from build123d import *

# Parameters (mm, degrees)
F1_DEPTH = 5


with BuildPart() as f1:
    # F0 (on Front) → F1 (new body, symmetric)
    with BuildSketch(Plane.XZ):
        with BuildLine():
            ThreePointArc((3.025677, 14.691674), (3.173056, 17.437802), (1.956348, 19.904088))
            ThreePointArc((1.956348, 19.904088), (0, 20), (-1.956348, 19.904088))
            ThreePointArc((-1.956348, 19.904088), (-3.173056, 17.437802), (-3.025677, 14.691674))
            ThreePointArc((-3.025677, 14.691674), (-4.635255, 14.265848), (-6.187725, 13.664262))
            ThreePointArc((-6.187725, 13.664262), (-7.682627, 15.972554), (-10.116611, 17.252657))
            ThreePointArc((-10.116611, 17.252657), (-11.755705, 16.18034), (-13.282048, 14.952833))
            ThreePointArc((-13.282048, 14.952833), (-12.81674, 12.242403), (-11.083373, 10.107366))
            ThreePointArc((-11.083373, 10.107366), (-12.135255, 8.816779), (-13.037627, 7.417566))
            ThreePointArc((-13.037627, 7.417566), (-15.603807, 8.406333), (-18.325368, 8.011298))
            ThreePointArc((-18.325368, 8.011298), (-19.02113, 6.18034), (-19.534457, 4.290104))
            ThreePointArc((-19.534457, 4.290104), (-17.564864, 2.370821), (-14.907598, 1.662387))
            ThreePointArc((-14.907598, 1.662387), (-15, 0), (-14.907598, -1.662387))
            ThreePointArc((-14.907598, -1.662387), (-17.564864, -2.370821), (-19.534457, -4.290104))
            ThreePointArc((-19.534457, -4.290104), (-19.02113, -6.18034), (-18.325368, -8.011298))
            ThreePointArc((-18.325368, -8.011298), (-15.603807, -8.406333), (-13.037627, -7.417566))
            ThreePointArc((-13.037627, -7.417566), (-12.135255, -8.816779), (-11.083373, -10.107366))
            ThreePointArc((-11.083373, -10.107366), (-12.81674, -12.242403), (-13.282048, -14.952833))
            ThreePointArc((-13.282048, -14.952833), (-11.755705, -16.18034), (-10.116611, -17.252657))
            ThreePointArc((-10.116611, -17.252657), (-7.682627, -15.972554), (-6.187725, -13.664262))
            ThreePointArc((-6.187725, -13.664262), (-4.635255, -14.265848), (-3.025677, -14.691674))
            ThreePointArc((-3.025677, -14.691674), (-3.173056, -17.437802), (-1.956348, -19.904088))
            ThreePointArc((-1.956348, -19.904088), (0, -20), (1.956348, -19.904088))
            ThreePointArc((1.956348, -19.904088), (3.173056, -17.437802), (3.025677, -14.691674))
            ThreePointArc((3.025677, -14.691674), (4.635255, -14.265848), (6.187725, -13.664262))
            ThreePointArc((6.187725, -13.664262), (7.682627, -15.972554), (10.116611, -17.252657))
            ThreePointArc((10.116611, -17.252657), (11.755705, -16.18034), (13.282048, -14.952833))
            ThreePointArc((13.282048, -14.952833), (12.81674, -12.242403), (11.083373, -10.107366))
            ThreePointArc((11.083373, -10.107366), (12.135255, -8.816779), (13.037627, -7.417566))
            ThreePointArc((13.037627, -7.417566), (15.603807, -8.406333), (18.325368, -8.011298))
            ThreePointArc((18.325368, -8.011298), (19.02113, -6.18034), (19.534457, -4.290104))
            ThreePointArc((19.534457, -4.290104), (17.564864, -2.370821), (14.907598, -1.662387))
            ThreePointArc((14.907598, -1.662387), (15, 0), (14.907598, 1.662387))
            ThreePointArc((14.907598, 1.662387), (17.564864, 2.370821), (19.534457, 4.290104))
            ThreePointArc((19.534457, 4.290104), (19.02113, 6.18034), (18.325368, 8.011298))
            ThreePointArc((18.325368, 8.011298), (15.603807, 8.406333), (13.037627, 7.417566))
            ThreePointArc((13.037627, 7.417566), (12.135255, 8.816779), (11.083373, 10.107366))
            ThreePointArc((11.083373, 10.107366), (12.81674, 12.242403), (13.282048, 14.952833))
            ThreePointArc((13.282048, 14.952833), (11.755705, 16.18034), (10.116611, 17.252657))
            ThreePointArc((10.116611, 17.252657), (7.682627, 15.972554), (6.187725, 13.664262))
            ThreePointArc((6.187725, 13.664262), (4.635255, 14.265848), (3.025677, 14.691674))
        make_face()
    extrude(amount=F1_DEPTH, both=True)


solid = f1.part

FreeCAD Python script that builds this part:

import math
import FreeCAD as App
import Part
import Sketcher

V = App.Vector

doc = App.newDocument("Part")
body = doc.addObject("PartDesign::Body", "Body")

# Sketch on XZ plane
sketch1 = doc.addObject("Sketcher::SketchObject", "Sketch")
body.addObject(sketch1)
sketch1.AttachmentSupport = (doc.XZ_Plane, [""])
sketch1.MapMode = "FlatFace"
sketch1.addGeometry(Part.ArcOfCircle(Part.Circle(V(-2.147352, 16.346319, 0), V(0, 0, 1), 5.431213), math.radians(-17.73739), math.radians(40.924185)), False)
sketch1.addGeometry(Part.ArcOfCircle(Part.Circle(V(0, -0.000087, 0), V(0, 0, 1), 20.000087), math.radians(84.386524), math.radians(95.613476)), False)
sketch1.addGeometry(Part.ArcOfCircle(Part.Circle(V(2.147352, 16.346319, 0), V(0, 0, 1), 5.431213), math.radians(139.075815), math.radians(197.73739)), False)
sketch1.addGeometry(Part.ArcOfCircle(Part.Circle(V(-0.00001, 0.000035, 0), V(0, 0, 1), 14.999964), math.radians(101.637068), math.radians(114.362942)), False)
sketch1.addGeometry(Part.ArcOfCircle(Part.Circle(V(-11.345366, 11.962269, 0), V(0, 0, 1), 5.43121), math.radians(18.2626), math.radians(76.924215)), False)
sketch1.addGeometry(Part.ArcOfCircle(Part.Circle(V(-0.000002, -0.000002, 0), V(0, 0, 1), 20.000001), math.radians(120.386494), math.radians(131.613492)), False)
sketch1.addGeometry(Part.ArcOfCircle(Part.Circle(V(-7.870888, 14.486628, 0), V(0, 0, 1), 5.431206), math.radians(175.075776), math.radians(233.737437)), False)
sketch1.addGeometry(Part.ArcOfCircle(Part.Circle(V(-0.000009, 0.000007, 0), V(0, 0, 1), 14.999989), math.radians(137.637072), math.radians(150.36293)), False)
sketch1.addGeometry(Part.ArcOfCircle(Part.Circle(V(-16.20984, 3.009045, 0), V(0, 0, 1), 5.431205), math.radians(54.262566), math.radians(112.924234)), False)
sketch1.addGeometry(Part.ArcOfCircle(Part.Circle(V(0.000081, -0.000026, 0), V(0, 0, 1), 20.000085), math.radians(156.386528), math.radians(167.613478)), False)
sketch1.addGeometry(Part.ArcOfCircle(Part.Circle(V(-14.882708, 7.093537, 0), V(0, 0, 1), 5.431207), math.radians(-148.924224), math.radians(-90.26258)), False)
sketch1.addGeometry(Part.ArcOfCircle(Part.Circle(V(0.000047, 0, 0), V(0, 0, 1), 15.000047), math.radians(173.637098), math.radians(186.362902)), False)
sketch1.addGeometry(Part.ArcOfCircle(Part.Circle(V(-14.882708, -7.093537, 0), V(0, 0, 1), 5.431207), math.radians(90.26258), math.radians(148.924224)), False)
sketch1.addGeometry(Part.ArcOfCircle(Part.Circle(V(0.000081, 0.000026, 0), V(0, 0, 1), 20.000085), math.radians(-167.613478), math.radians(-156.386528)), False)
sketch1.addGeometry(Part.ArcOfCircle(Part.Circle(V(-16.20984, -3.009045, 0), V(0, 0, 1), 5.431205), math.radians(-112.924234), math.radians(-54.262566)), False)
sketch1.addGeometry(Part.ArcOfCircle(Part.Circle(V(-0.000009, -0.000007, 0), V(0, 0, 1), 14.999989), math.radians(-150.36293), math.radians(-137.637072)), False)
sketch1.addGeometry(Part.ArcOfCircle(Part.Circle(V(-7.870888, -14.486628, 0), V(0, 0, 1), 5.431206), math.radians(126.262563), math.radians(184.924224)), False)
sketch1.addGeometry(Part.ArcOfCircle(Part.Circle(V(-0.000002, 0.000002, 0), V(0, 0, 1), 20.000001), math.radians(-131.613492), math.radians(-120.386494)), False)
sketch1.addGeometry(Part.ArcOfCircle(Part.Circle(V(-11.345366, -11.962269, 0), V(0, 0, 1), 5.43121), math.radians(-76.924215), math.radians(-18.2626)), False)
sketch1.addGeometry(Part.ArcOfCircle(Part.Circle(V(-0.00001, -0.000035, 0), V(0, 0, 1), 14.999964), math.radians(-114.362942), math.radians(-101.637068)), False)
sketch1.addGeometry(Part.ArcOfCircle(Part.Circle(V(2.147352, -16.346319, 0), V(0, 0, 1), 5.431213), math.radians(162.26261), math.radians(220.924185)), False)
sketch1.addGeometry(Part.ArcOfCircle(Part.Circle(V(0, 0.000087, 0), V(0, 0, 1), 20.000087), math.radians(-95.613476), math.radians(-84.386524)), False)
sketch1.addGeometry(Part.ArcOfCircle(Part.Circle(V(-2.147352, -16.346319, 0), V(0, 0, 1), 5.431213), math.radians(-40.924185), math.radians(17.73739)), False)
sketch1.addGeometry(Part.ArcOfCircle(Part.Circle(V(0.00001, -0.000035, 0), V(0, 0, 1), 14.999964), math.radians(-78.362932), math.radians(-65.637058)), False)
sketch1.addGeometry(Part.ArcOfCircle(Part.Circle(V(11.345366, -11.962269, 0), V(0, 0, 1), 5.43121), math.radians(-161.7374), math.radians(-103.075785)), False)
sketch1.addGeometry(Part.ArcOfCircle(Part.Circle(V(0.000002, 0.000002, 0), V(0, 0, 1), 20.000001), math.radians(-59.613506), math.radians(-48.386508)), False)
sketch1.addGeometry(Part.ArcOfCircle(Part.Circle(V(7.870888, -14.486628, 0), V(0, 0, 1), 5.431206), math.radians(-4.924224), math.radians(53.737437)), False)
sketch1.addGeometry(Part.ArcOfCircle(Part.Circle(V(0.000009, -0.000007, 0), V(0, 0, 1), 14.999989), math.radians(-42.362928), math.radians(-29.63707)), False)
sketch1.addGeometry(Part.ArcOfCircle(Part.Circle(V(16.20984, -3.009045, 0), V(0, 0, 1), 5.431205), math.radians(-125.737434), math.radians(-67.075766)), False)
sketch1.addGeometry(Part.ArcOfCircle(Part.Circle(V(-0.000081, 0.000026, 0), V(0, 0, 1), 20.000085), math.radians(-23.613472), math.radians(-12.386522)), False)
sketch1.addGeometry(Part.ArcOfCircle(Part.Circle(V(14.882708, -7.093537, 0), V(0, 0, 1), 5.431207), math.radians(31.075776), math.radians(89.73742)), False)
sketch1.addGeometry(Part.ArcOfCircle(Part.Circle(V(-0.000047, 0, 0), V(0, 0, 1), 15.000047), math.radians(-6.362902), math.radians(6.362902)), False)
sketch1.addGeometry(Part.ArcOfCircle(Part.Circle(V(14.882708, 7.093537, 0), V(0, 0, 1), 5.431207), math.radians(-89.73742), math.radians(-31.075776)), False)
sketch1.addGeometry(Part.ArcOfCircle(Part.Circle(V(-0.000081, -0.000026, 0), V(0, 0, 1), 20.000085), math.radians(12.386522), math.radians(23.613472)), False)
sketch1.addGeometry(Part.ArcOfCircle(Part.Circle(V(16.20984, 3.009045, 0), V(0, 0, 1), 5.431205), math.radians(67.075766), math.radians(125.737434)), False)
sketch1.addGeometry(Part.ArcOfCircle(Part.Circle(V(0.000009, 0.000007, 0), V(0, 0, 1), 14.999989), math.radians(29.63707), math.radians(42.362928)), False)
sketch1.addGeometry(Part.ArcOfCircle(Part.Circle(V(7.870888, 14.486628, 0), V(0, 0, 1), 5.431206), math.radians(-53.737437), math.radians(4.924224)), False)
sketch1.addGeometry(Part.ArcOfCircle(Part.Circle(V(0.000002, -0.000002, 0), V(0, 0, 1), 20.000001), math.radians(48.386508), math.radians(59.613506)), False)
sketch1.addGeometry(Part.ArcOfCircle(Part.Circle(V(11.345366, 11.962269, 0), V(0, 0, 1), 5.43121), math.radians(103.075785), math.radians(161.7374)), False)
sketch1.addGeometry(Part.ArcOfCircle(Part.Circle(V(0.00001, 0.000035, 0), V(0, 0, 1), 14.999964), math.radians(65.637058), math.radians(78.362932)), False)
sketch1.addConstraint(Sketcher.Constraint("Coincident", 0, 2, 1, 1))
sketch1.addConstraint(Sketcher.Constraint("Coincident", 1, 2, 2, 1))
sketch1.addConstraint(Sketcher.Constraint("Coincident", 2, 2, 3, 1))
sketch1.addConstraint(Sketcher.Constraint("Coincident", 3, 2, 4, 1))
sketch1.addConstraint(Sketcher.Constraint("Coincident", 4, 2, 5, 1))
sketch1.addConstraint(Sketcher.Constraint("Coincident", 5, 2, 6, 1))
sketch1.addConstraint(Sketcher.Constraint("Coincident", 6, 2, 7, 1))
sketch1.addConstraint(Sketcher.Constraint("Coincident", 7, 2, 8, 1))
sketch1.addConstraint(Sketcher.Constraint("Coincident", 8, 2, 9, 1))
sketch1.addConstraint(Sketcher.Constraint("Coincident", 9, 2, 10, 1))
sketch1.addConstraint(Sketcher.Constraint("Coincident", 10, 2, 11, 1))
sketch1.addConstraint(Sketcher.Constraint("Coincident", 11, 2, 12, 1))
sketch1.addConstraint(Sketcher.Constraint("Coincident", 12, 2, 13, 1))
sketch1.addConstraint(Sketcher.Constraint("Coincident", 13, 2, 14, 1))
sketch1.addConstraint(Sketcher.Constraint("Coincident", 14, 2, 15, 1))
sketch1.addConstraint(Sketcher.Constraint("Coincident", 15, 2, 16, 1))
sketch1.addConstraint(Sketcher.Constraint("Coincident", 16, 2, 17, 1))
sketch1.addConstraint(Sketcher.Constraint("Coincident", 17, 2, 18, 1))
sketch1.addConstraint(Sketcher.Constraint("Coincident", 18, 2, 19, 1))
sketch1.addConstraint(Sketcher.Constraint("Coincident", 19, 2, 20, 1))
sketch1.addConstraint(Sketcher.Constraint("Coincident", 20, 2, 21, 1))
sketch1.addConstraint(Sketcher.Constraint("Coincident", 21, 2, 22, 1))
sketch1.addConstraint(Sketcher.Constraint("Coincident", 22, 2, 23, 1))
sketch1.addConstraint(Sketcher.Constraint("Coincident", 23, 2, 24, 1))
sketch1.addConstraint(Sketcher.Constraint("Coincident", 24, 2, 25, 1))
sketch1.addConstraint(Sketcher.Constraint("Coincident", 25, 2, 26, 1))
sketch1.addConstraint(Sketcher.Constraint("Coincident", 26, 2, 27, 1))
sketch1.addConstraint(Sketcher.Constraint("Coincident", 27, 2, 28, 1))
sketch1.addConstraint(Sketcher.Constraint("Coincident", 28, 2, 29, 1))
sketch1.addConstraint(Sketcher.Constraint("Coincident", 29, 2, 30, 1))
sketch1.addConstraint(Sketcher.Constraint("Coincident", 30, 2, 31, 1))
sketch1.addConstraint(Sketcher.Constraint("Coincident", 31, 2, 32, 1))
sketch1.addConstraint(Sketcher.Constraint("Coincident", 32, 2, 33, 1))
sketch1.addConstraint(Sketcher.Constraint("Coincident", 33, 2, 34, 1))
sketch1.addConstraint(Sketcher.Constraint("Coincident", 34, 2, 35, 1))
sketch1.addConstraint(Sketcher.Constraint("Coincident", 35, 2, 36, 1))
sketch1.addConstraint(Sketcher.Constraint("Coincident", 36, 2, 37, 1))
sketch1.addConstraint(Sketcher.Constraint("Coincident", 37, 2, 38, 1))
sketch1.addConstraint(Sketcher.Constraint("Coincident", 38, 2, 39, 1))
sketch1.addConstraint(Sketcher.Constraint("Coincident", 39, 2, 0, 1))
sketch1.addConstraint(Sketcher.Constraint("Coincident", 5, 3, -1, 1))
sketch1.addConstraint(Sketcher.Constraint("Coincident", 17, 3, -1, 1))
sketch1.addConstraint(Sketcher.Constraint("Coincident", 25, 3, -1, 1))
sketch1.addConstraint(Sketcher.Constraint("Coincident", 37, 3, -1, 1))
sketch1.addConstraint(Sketcher.Constraint("Coincident", 15, 3, 5, 3))
sketch1.addConstraint(Sketcher.Constraint("Coincident", 35, 3, 25, 3))
sketch1.addConstraint(Sketcher.Constraint("PointOnObject", 1, 3, -2))
sketch1.addConstraint(Sketcher.Constraint("PointOnObject", 11, 3, -1))
sketch1.addConstraint(Sketcher.Constraint("PointOnObject", 21, 3, -2))
sketch1.addConstraint(Sketcher.Constraint("PointOnObject", 31, 3, -1))
sketch1.addConstraint(Sketcher.Constraint("Radius", 5, 20.000001))
sketch1.addConstraint(Sketcher.Constraint("Radius", 17, 20.000001))
sketch1.addConstraint(Sketcher.Constraint("Radius", 25, 20.000001))
sketch1.addConstraint(Sketcher.Constraint("Radius", 37, 20.000001))
sketch1.addConstraint(Sketcher.Constraint("Radius", 4, 5.43121))
sketch1.addConstraint(Sketcher.Constraint("Radius", 7, 14.999989))
sketch1.addConstraint(Sketcher.Constraint("Radius", 15, 14.999989))
sketch1.addConstraint(Sketcher.Constraint("Radius", 18, 5.43121))
sketch1.addConstraint(Sketcher.Constraint("Radius", 24, 5.43121))
sketch1.addConstraint(Sketcher.Constraint("Radius", 27, 14.999989))
sketch1.addConstraint(Sketcher.Constraint("Radius", 35, 14.999989))
sketch1.addConstraint(Sketcher.Constraint("Radius", 38, 5.43121))
sketch1.addConstraint(Sketcher.Constraint("Radius", 0, 5.431213))
sketch1.addConstraint(Sketcher.Constraint("Radius", 1, 20.000087))
sketch1.addConstraint(Sketcher.Constraint("Radius", 2, 5.431213))
sketch1.addConstraint(Sketcher.Constraint("Radius", 3, 14.999964))
sketch1.addConstraint(Sketcher.Constraint("Radius", 6, 5.431206))
sketch1.addConstraint(Sketcher.Constraint("Radius", 8, 5.431205))
sketch1.addConstraint(Sketcher.Constraint("Radius", 9, 20.000085))
sketch1.addConstraint(Sketcher.Constraint("Radius", 10, 5.431207))
sketch1.addConstraint(Sketcher.Constraint("Radius", 11, 15.000047))
sketch1.addConstraint(Sketcher.Constraint("Radius", 12, 5.431207))
sketch1.addConstraint(Sketcher.Constraint("Radius", 13, 20.000085))
sketch1.addConstraint(Sketcher.Constraint("Radius", 14, 5.431205))
sketch1.addConstraint(Sketcher.Constraint("Radius", 16, 5.431206))
sketch1.addConstraint(Sketcher.Constraint("Radius", 19, 14.999964))
sketch1.addConstraint(Sketcher.Constraint("Radius", 20, 5.431213))
sketch1.addConstraint(Sketcher.Constraint("Radius", 21, 20.000087))
sketch1.addConstraint(Sketcher.Constraint("Radius", 22, 5.431213))
sketch1.addConstraint(Sketcher.Constraint("Radius", 23, 14.999964))
sketch1.addConstraint(Sketcher.Constraint("Radius", 26, 5.431206))
sketch1.addConstraint(Sketcher.Constraint("Radius", 28, 5.431205))
sketch1.addConstraint(Sketcher.Constraint("Radius", 29, 20.000085))
sketch1.addConstraint(Sketcher.Constraint("Radius", 30, 5.431207))
sketch1.addConstraint(Sketcher.Constraint("Radius", 31, 15.000047))
sketch1.addConstraint(Sketcher.Constraint("Radius", 32, 5.431207))
sketch1.addConstraint(Sketcher.Constraint("Radius", 33, 20.000085))
sketch1.addConstraint(Sketcher.Constraint("Radius", 34, 5.431205))
sketch1.addConstraint(Sketcher.Constraint("Radius", 36, 5.431206))
sketch1.addConstraint(Sketcher.Constraint("Radius", 39, 14.999964))
sketch1.addConstraint(Sketcher.Constraint("DistanceX", 0, 3, -1, 1, 2.147352))
sketch1.addConstraint(Sketcher.Constraint("DistanceY", -1, 1, 0, 3, 16.346319))
sketch1.addConstraint(Sketcher.Constraint("DistanceX", -1, 1, 2, 3, 2.147352))
sketch1.addConstraint(Sketcher.Constraint("DistanceY", -1, 1, 2, 3, 16.346319))
sketch1.addConstraint(Sketcher.Constraint("DistanceY", -1, 1, 4, 3, 11.962269))
sketch1.addConstraint(Sketcher.Constraint("DistanceX", 6, 3, -1, 1, 7.870888))
sketch1.addConstraint(Sketcher.Constraint("DistanceY", -1, 1, 6, 3, 14.486628))
sketch1.addConstraint(Sketcher.Constraint("DistanceX", 8, 3, -1, 1, 16.20984))
sketch1.addConstraint(Sketcher.Constraint("DistanceX", 14, 3, -1, 1, 16.20984))
sketch1.addConstraint(Sketcher.Constraint("DistanceX", 16, 3, -1, 1, 7.870888))
sketch1.addConstraint(Sketcher.Constraint("DistanceY", 16, 3, -1, 1, 14.486628))
sketch1.addConstraint(Sketcher.Constraint("DistanceY", 18, 3, -1, 1, 11.962269))
sketch1.addConstraint(Sketcher.Constraint("DistanceX", -1, 1, 20, 3, 2.147352))
sketch1.addConstraint(Sketcher.Constraint("DistanceY", 20, 3, -1, 1, 16.346319))
sketch1.addConstraint(Sketcher.Constraint("DistanceX", 22, 3, -1, 1, 2.147352))
sketch1.addConstraint(Sketcher.Constraint("DistanceY", 22, 3, -1, 1, 16.346319))
sketch1.addConstraint(Sketcher.Constraint("DistanceY", 24, 3, -1, 1, 11.962269))
sketch1.addConstraint(Sketcher.Constraint("DistanceX", -1, 1, 26, 3, 7.870888))
sketch1.addConstraint(Sketcher.Constraint("DistanceY", 26, 3, -1, 1, 14.486628))
sketch1.addConstraint(Sketcher.Constraint("DistanceX", -1, 1, 28, 3, 16.20984))
sketch1.addConstraint(Sketcher.Constraint("DistanceX", -1, 1, 34, 3, 16.20984))
sketch1.addConstraint(Sketcher.Constraint("DistanceX", -1, 1, 36, 3, 7.870888))
sketch1.addConstraint(Sketcher.Constraint("DistanceY", -1, 1, 36, 3, 14.486628))
sketch1.addConstraint(Sketcher.Constraint("DistanceY", -1, 1, 38, 3, 11.962269))
sketch1.addConstraint(Sketcher.Constraint("DistanceX", -1, 1, 0, 2, 1.956348))
sketch1.addConstraint(Sketcher.Constraint("DistanceY", -1, 1, 3, 2, 13.664262))
sketch1.addConstraint(Sketcher.Constraint("DistanceX", 4, 2, -1, 1, 10.116611))
sketch1.addConstraint(Sketcher.Constraint("DistanceX", 17, 2, -1, 1, 10.116611))
sketch1.addConstraint(Sketcher.Constraint("DistanceY", 18, 2, -1, 1, 13.664262))
sketch1.addConstraint(Sketcher.Constraint("DistanceX", 20, 2, -1, 1, 1.956348))
sketch1.addConstraint(Sketcher.Constraint("DistanceY", 23, 2, -1, 1, 13.664262))
sketch1.addConstraint(Sketcher.Constraint("DistanceX", -1, 1, 24, 2, 10.116611))
sketch1.addConstraint(Sketcher.Constraint("DistanceX", -1, 1, 37, 2, 10.116611))
sketch1.addConstraint(Sketcher.Constraint("DistanceY", -1, 1, 38, 2, 13.664262))
sketch1.addConstraint(Sketcher.Constraint("DistanceY", -1, 1, 8, 3, 3.009045))
sketch1.addConstraint(Sketcher.Constraint("DistanceX", 10, 3, -1, 1, 14.882708))
sketch1.addConstraint(Sketcher.Constraint("DistanceY", -1, 1, 10, 3, 7.093537))
sketch1.addConstraint(Sketcher.Constraint("DistanceX", 12, 3, -1, 1, 14.882708))
sketch1.addConstraint(Sketcher.Constraint("DistanceY", 12, 3, -1, 1, 7.093537))
sketch1.addConstraint(Sketcher.Constraint("DistanceY", 14, 3, -1, 1, 3.009045))
sketch1.addConstraint(Sketcher.Constraint("DistanceY", 28, 3, -1, 1, 3.009045))
sketch1.addConstraint(Sketcher.Constraint("DistanceX", -1, 1, 30, 3, 14.882708))
sketch1.addConstraint(Sketcher.Constraint("DistanceY", 30, 3, -1, 1, 7.093537))
sketch1.addConstraint(Sketcher.Constraint("DistanceX", -1, 1, 32, 3, 14.882708))
sketch1.addConstraint(Sketcher.Constraint("DistanceY", -1, 1, 32, 3, 7.093537))
sketch1.addConstraint(Sketcher.Constraint("DistanceY", -1, 1, 34, 3, 3.009045))
sketch1.addConstraint(Sketcher.Constraint("DistanceX", 2, 2, -1, 1, 3.025677))
sketch1.addConstraint(Sketcher.Constraint("DistanceX", 6, 2, -1, 1, 11.083373))
sketch1.addConstraint(Sketcher.Constraint("DistanceX", 7, 2, -1, 1, 13.037627))
sketch1.addConstraint(Sketcher.Constraint("DistanceX", 8, 2, -1, 1, 18.325368))
sketch1.addConstraint(Sketcher.Constraint("DistanceX", 9, 2, -1, 1, 19.534457))
sketch1.addConstraint(Sketcher.Constraint("DistanceX", 10, 2, -1, 1, 14.907598))
sketch1.addConstraint(Sketcher.Constraint("DistanceX", 12, 2, -1, 1, 19.534457))
sketch1.addConstraint(Sketcher.Constraint("DistanceX", 13, 2, -1, 1, 18.325368))
sketch1.addConstraint(Sketcher.Constraint("DistanceX", 19, 2, -1, 1, 3.025677))
sketch1.addConstraint(Sketcher.Constraint("DistanceX", -1, 1, 22, 2, 3.025677))
sketch1.addConstraint(Sketcher.Constraint("DistanceX", -1, 1, 26, 2, 11.083373))
sketch1.addConstraint(Sketcher.Constraint("DistanceX", -1, 1, 27, 2, 13.037627))
sketch1.addConstraint(Sketcher.Constraint("DistanceX", -1, 1, 28, 2, 18.325368))
sketch1.addConstraint(Sketcher.Constraint("DistanceX", -1, 1, 29, 2, 19.534457))
sketch1.addConstraint(Sketcher.Constraint("DistanceX", -1, 1, 30, 2, 14.907598))
sketch1.addConstraint(Sketcher.Constraint("DistanceX", -1, 1, 32, 2, 19.534457))
sketch1.addConstraint(Sketcher.Constraint("DistanceX", -1, 1, 33, 2, 18.325368))
sketch1.addConstraint(Sketcher.Constraint("DistanceX", -1, 1, 39, 2, 3.025677))
pad1 = doc.addObject("PartDesign::Pad", "Pad")
body.addObject(pad1)
pad1.Profile = sketch1
pad1.Length = 10
pad1.Midplane = True

doc.recompute()
